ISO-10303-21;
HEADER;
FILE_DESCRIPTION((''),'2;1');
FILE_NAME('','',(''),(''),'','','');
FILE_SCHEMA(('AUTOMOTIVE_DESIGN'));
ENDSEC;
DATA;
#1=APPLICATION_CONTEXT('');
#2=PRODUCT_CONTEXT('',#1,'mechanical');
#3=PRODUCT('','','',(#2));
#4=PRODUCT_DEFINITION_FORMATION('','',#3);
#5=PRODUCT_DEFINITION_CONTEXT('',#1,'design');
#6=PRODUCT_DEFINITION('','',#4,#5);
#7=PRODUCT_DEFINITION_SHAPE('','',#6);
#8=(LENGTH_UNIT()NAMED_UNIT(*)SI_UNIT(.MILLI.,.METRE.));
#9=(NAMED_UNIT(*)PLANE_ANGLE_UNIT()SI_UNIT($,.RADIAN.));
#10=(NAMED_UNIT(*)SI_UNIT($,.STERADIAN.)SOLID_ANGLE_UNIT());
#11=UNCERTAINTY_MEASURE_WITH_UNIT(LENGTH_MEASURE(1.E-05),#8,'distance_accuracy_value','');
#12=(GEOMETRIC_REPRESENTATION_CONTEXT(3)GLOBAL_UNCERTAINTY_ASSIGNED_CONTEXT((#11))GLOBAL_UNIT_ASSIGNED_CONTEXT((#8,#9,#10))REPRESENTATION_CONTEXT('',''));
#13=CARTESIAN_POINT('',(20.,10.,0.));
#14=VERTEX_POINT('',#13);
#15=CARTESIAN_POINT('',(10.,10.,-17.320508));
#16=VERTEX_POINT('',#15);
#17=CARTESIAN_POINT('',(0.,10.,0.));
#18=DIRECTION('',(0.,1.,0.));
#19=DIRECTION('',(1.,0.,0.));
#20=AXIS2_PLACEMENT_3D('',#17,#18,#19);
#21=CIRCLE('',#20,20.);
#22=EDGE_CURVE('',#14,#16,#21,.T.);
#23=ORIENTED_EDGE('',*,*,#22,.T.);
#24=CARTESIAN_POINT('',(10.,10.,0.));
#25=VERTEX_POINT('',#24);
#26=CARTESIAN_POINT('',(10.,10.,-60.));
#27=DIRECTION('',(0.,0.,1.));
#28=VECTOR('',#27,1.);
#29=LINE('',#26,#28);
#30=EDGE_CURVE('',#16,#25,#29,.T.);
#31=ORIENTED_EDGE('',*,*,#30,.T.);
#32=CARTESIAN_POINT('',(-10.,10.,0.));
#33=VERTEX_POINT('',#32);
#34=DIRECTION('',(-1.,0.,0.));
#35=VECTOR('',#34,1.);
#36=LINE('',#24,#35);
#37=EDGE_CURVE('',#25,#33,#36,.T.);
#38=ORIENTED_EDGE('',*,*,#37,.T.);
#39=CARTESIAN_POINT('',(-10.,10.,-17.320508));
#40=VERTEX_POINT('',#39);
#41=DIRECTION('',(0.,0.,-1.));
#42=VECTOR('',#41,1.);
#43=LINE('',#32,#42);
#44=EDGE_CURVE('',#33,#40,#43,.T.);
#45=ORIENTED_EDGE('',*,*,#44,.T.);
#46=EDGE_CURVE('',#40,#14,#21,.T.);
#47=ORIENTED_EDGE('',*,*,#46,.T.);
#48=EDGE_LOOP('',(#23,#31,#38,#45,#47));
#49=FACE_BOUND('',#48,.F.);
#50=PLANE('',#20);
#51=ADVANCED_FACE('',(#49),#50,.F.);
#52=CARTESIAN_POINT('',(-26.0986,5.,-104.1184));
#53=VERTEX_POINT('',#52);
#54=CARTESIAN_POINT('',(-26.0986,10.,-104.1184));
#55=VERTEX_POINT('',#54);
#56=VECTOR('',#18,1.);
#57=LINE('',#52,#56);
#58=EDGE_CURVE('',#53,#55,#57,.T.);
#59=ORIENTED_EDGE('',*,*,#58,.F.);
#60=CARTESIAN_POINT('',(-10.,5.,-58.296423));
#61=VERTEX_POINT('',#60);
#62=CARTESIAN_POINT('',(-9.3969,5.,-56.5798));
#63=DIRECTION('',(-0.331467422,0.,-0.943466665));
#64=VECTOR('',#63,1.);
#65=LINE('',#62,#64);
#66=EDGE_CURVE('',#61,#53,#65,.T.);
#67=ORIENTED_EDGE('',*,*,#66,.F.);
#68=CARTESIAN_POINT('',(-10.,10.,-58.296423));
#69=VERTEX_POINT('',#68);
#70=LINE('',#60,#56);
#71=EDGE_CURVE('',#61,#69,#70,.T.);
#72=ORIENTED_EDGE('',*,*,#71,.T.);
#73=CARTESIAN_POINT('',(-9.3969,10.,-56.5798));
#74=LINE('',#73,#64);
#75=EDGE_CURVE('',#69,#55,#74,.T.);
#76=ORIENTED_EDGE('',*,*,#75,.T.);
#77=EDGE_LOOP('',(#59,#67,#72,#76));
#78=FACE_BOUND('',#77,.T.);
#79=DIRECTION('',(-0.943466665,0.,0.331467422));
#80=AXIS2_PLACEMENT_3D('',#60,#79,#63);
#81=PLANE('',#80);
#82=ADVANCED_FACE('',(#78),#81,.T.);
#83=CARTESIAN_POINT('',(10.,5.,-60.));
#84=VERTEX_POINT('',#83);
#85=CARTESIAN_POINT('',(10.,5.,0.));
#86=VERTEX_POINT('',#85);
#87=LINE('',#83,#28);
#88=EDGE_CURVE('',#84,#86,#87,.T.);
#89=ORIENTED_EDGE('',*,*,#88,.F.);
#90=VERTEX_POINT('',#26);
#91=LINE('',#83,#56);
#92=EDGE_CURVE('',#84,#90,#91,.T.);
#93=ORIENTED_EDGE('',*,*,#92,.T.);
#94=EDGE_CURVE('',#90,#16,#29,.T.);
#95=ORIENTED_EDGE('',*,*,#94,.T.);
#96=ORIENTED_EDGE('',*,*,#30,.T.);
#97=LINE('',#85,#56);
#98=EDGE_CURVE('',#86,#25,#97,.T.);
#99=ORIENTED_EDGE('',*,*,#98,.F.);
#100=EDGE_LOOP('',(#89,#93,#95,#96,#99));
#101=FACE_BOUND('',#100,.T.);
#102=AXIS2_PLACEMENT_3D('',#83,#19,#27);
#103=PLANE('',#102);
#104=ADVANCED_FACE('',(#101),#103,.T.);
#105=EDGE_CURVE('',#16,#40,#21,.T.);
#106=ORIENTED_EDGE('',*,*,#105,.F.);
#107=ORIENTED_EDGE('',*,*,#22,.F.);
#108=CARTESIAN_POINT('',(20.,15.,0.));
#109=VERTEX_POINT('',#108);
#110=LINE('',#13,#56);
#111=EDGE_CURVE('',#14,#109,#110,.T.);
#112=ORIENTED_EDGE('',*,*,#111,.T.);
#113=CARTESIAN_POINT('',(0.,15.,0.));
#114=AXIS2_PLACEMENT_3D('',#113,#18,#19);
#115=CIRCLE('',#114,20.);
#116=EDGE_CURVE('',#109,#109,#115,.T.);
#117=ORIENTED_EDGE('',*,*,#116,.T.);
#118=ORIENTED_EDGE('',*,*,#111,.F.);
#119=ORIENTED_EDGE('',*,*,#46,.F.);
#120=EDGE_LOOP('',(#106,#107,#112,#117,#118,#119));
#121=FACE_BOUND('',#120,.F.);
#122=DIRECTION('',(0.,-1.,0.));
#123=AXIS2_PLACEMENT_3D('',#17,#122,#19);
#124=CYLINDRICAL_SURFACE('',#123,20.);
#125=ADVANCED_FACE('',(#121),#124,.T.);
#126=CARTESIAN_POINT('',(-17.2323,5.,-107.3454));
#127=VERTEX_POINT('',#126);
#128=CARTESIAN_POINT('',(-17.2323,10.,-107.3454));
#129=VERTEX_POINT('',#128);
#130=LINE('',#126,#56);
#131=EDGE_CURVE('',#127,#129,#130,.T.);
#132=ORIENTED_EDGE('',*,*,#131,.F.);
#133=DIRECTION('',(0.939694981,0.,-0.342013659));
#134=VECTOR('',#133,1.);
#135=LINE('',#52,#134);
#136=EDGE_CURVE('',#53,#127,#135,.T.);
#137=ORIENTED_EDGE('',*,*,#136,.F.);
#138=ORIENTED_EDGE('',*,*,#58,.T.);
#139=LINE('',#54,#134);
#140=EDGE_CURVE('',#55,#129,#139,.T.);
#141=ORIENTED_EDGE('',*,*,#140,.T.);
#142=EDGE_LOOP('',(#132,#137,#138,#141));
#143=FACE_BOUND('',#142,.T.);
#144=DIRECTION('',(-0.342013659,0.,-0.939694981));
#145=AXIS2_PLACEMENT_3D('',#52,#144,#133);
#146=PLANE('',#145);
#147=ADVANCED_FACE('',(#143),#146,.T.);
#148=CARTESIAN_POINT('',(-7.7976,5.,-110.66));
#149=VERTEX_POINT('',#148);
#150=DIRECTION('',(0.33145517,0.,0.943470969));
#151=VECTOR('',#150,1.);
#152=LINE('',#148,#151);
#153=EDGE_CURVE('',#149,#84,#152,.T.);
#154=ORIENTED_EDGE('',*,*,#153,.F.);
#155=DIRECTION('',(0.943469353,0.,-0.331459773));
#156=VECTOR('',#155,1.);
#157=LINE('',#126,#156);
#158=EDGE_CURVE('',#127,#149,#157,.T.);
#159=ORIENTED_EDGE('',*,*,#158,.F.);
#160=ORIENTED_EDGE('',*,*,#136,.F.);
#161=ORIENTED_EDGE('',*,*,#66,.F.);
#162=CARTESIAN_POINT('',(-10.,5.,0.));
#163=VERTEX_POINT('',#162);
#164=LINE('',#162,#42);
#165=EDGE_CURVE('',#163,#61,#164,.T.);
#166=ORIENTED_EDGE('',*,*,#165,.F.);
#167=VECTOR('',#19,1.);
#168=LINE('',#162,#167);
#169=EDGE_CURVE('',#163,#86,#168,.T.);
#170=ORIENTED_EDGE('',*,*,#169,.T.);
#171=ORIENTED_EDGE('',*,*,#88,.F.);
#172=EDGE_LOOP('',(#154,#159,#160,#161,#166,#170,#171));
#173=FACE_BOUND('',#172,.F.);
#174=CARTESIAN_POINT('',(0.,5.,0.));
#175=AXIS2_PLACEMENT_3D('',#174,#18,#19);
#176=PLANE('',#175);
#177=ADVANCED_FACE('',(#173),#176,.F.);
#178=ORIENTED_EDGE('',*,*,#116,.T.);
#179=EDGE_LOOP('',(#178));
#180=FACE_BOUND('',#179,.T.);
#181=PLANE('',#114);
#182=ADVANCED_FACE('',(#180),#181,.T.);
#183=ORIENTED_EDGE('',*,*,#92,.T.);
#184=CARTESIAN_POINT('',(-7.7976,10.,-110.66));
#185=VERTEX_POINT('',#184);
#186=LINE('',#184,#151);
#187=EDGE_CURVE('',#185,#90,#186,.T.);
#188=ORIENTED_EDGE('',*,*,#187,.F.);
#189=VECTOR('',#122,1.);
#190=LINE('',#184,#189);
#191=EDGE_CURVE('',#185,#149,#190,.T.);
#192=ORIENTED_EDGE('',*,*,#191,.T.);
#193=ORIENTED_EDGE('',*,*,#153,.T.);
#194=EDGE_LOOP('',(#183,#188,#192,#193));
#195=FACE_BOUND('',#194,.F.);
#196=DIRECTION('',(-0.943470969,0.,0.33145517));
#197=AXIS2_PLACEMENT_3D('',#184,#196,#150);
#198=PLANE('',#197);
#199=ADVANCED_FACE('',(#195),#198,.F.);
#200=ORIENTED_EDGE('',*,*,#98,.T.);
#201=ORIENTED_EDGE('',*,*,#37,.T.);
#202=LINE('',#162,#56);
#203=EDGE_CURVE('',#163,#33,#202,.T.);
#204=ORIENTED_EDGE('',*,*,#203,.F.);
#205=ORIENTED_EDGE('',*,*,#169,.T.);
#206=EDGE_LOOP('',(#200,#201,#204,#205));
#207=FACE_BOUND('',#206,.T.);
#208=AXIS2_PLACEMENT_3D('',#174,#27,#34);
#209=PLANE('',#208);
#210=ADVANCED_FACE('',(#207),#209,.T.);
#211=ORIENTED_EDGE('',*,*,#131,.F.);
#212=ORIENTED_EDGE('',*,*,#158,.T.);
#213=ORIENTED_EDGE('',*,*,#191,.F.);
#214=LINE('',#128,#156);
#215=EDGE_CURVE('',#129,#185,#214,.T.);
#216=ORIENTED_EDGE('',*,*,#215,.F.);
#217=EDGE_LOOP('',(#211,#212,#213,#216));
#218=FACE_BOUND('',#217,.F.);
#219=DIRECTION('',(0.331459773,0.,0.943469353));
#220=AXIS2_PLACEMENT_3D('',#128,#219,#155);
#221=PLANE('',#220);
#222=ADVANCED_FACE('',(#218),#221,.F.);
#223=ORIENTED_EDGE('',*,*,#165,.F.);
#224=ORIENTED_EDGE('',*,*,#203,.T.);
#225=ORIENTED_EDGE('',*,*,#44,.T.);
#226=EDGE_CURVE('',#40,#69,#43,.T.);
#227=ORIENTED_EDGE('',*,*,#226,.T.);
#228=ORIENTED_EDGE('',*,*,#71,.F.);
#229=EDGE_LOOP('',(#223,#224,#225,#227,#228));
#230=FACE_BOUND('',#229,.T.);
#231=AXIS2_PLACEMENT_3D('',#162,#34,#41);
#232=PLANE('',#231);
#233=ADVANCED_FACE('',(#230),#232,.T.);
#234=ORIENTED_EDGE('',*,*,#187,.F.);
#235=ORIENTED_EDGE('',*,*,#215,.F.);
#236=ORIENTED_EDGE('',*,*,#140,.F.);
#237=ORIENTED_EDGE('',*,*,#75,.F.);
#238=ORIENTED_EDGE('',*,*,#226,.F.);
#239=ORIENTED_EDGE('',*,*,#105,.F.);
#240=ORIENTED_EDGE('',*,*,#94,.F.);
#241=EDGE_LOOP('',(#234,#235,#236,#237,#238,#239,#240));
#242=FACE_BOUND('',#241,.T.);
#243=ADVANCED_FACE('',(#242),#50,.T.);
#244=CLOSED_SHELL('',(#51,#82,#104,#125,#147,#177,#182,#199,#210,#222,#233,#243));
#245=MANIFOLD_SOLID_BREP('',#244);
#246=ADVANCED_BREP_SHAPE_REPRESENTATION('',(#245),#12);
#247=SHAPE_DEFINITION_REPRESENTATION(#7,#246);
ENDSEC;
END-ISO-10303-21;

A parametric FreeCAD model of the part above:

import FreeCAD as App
import Part
import Sketcher

V = App.Vector
Q = App.Units.Quantity

doc = App.newDocument("Part")
params = doc.addObject("Spreadsheet::Sheet", "Params")
for row, (alias, value) in enumerate([
    ("sketch1_width", "20 mm"),
    ("sketch1_height", "60 mm"),
    ("pad1_length", "5 mm"),
    ("sketch2_width", "10 mm"),
    ("sketch2_length", "10 mm"),
    ("pad2_length", "5 mm"),
    ("sketch3_diameter", "40 mm"),
    ("pad3_length", "5 mm"),
], start=1):
    params.set(f"A{row}", alias)
    params.set(f"B{row}", "=" + value)
    params.setAlias(f"B{row}", alias)

body = doc.addObject("PartDesign::Body", "Body")

# Sketch on XZ plane
sketch1 = doc.addObject("Sketcher::SketchObject", "Sketch")
body.addObject(sketch1)
sketch1.AttachmentSupport = (doc.XZ_Plane, [""])
sketch1.MapMode = "FlatFace"
sketch1.AttachmentOffset = App.Placement(V(0, 0, -5), App.Rotation())
sketch1.addGeometry([
    Part.LineSegment(V(-10, 0, 0), V(10, 0, 0)),  # 0
    Part.LineSegment(V(10, 0, 0), V(10, -60, 0)),  # 1
    Part.LineSegment(V(10, -60, 0), V(0, -60, 0)),  # 2
    Part.LineSegment(V(0, -60, 0), V(-17, -107, 0)),  # 3
    Part.LineSegment(V(-17, -107, 0), V(-26, -104, 0)),  # 4
    Part.LineSegment(V(-26, -104, 0), V(-10, -58, 0)),  # 5
    Part.LineSegment(V(-10, -58, 0), V(-10, 0, 0)),  # 6
], False)
sketch1.addConstraint([
    Sketcher.Constraint("Coincident", 0, 2, 1, 1),
    Sketcher.Constraint("Coincident", 1, 2, 2, 1),
    Sketcher.Constraint("Coincident", 2, 2, 3, 1),
    Sketcher.Constraint("Coincident", 3, 2, 4, 1),
    Sketcher.Constraint("Coincident", 4, 2, 5, 1),
    Sketcher.Constraint("Coincident", 5, 2, 6, 1),
    Sketcher.Constraint("Coincident", 6, 2, 0, 1),
    Sketcher.Constraint("Horizontal", 0),
    Sketcher.Constraint("Vertical", 1),
    Sketcher.Constraint("Horizontal", 2),
    Sketcher.Constraint("Vertical", 6),
    Sketcher.Constraint("Symmetric", 0, 2, 6, 2, -1, 1),
    Sketcher.Constraint("PointOnObject", 2, 2, -2),
    Sketcher.Constraint("Perpendicular", 3, 4),
    Sketcher.Constraint("DistanceX", 0, 1, 0, 2, 20.0),
    Sketcher.Constraint("DistanceY", 1, 2, 1, 1, 60.0),
    Sketcher.Constraint("Angle", 4, Q("160.0004 deg")),
    Sketcher.Constraint("Distance", 3, 50.384),
    Sketcher.Constraint("DistanceY", 6, 1, 6, 2, 58.2964),
    Sketcher.Constraint("DistanceY", 3, 2, 4, 2, 3.227),
])
sketch1.setExpression("Constraints[14]", "Params.sketch1_width")
sketch1.setExpression("Constraints[15]", "Params.sketch1_height")
pad1 = doc.addObject("PartDesign::Pad", "Pad")
body.addObject(pad1)
pad1.Profile = sketch1
pad1.setExpression("Length", "Params.pad1_length")
pad1.Reversed = True

# Sketch on XZ plane
sketch2 = doc.addObject("Sketcher::SketchObject", "Sketch001")
body.addObject(sketch2)
sketch2.AttachmentSupport = (doc.XZ_Plane, [""])
sketch2.MapMode = "FlatFace"
sketch2.AttachmentOffset = App.Placement(V(0, 0, -10), App.Rotation())
sketch2.addGeometry([
    Part.LineSegment(V(-17, -107, 0), V(0, -60, 0)),
    Part.LineSegment(V(0, -60, 0), V(10, -60, 0)),
    Part.LineSegment(V(10, -60, 0), V(-8, -111, 0)),
    Part.LineSegment(V(-8, -111, 0), V(-17, -107, 0)),
], False)
sketch2.addConstraint([
    Sketcher.Constraint("Coincident", 0, 2, 1, 1),
    Sketcher.Constraint("Coincident", 1, 2, 2, 1),
    Sketcher.Constraint("Coincident", 2, 2, 3, 1),
    Sketcher.Constraint("Coincident", 3, 2, 0, 1),
    Sketcher.Constraint("Horizontal", 1),
    Sketcher.Constraint("PointOnObject", 0, 2, -2),
    Sketcher.Constraint("Perpendicular", 2, 3),
    Sketcher.Constraint("DistanceX", 1, 1, 1, 2, 10.0),
    Sketcher.Constraint("Distance", 3, 10.0),
    Sketcher.Constraint("Angle", 0, Q("70 deg")),
    Sketcher.Constraint("DistanceY", 0, 2, -1, 1, 60.0),
    Sketcher.Constraint("DistanceY", 2, 2, -1, 1, 110.66),
])
sketch2.setExpression("Constraints[7]", "Params.sketch2_width")
sketch2.setExpression("Constraints[8]", "Params.sketch2_length")
pad2 = doc.addObject("PartDesign::Pad", "Pad001")
body.addObject(pad2)
pad2.Profile = sketch2
pad2.setExpression("Length", "Params.pad2_length")

# Sketch on XZ plane
sketch3 = doc.addObject("Sketcher::SketchObject", "Sketch002")
body.addObject(sketch3)
sketch3.AttachmentSupport = (doc.XZ_Plane, [""])
sketch3.MapMode = "FlatFace"
sketch3.AttachmentOffset = App.Placement(V(0, 0, -10), App.Rotation())
sketch3.addGeometry(Part.Circle(V(0, 0, 0), V(0, 0, 1), 20), False)
sketch3.addConstraint([
    Sketcher.Constraint("Coincident", 0, 3, -1, 1),
    Sketcher.Constraint("Diameter", 0, 40.0),
])
sketch3.setExpression("Constraints[1]", "Params.sketch3_diameter")
pad3 = doc.addObject("PartDesign::Pad", "Pad002")
body.addObject(pad3)
pad3.Profile = sketch3
pad3.setExpression("Length", "Params.pad3_length")
pad3.Reversed = True

doc.recompute()
